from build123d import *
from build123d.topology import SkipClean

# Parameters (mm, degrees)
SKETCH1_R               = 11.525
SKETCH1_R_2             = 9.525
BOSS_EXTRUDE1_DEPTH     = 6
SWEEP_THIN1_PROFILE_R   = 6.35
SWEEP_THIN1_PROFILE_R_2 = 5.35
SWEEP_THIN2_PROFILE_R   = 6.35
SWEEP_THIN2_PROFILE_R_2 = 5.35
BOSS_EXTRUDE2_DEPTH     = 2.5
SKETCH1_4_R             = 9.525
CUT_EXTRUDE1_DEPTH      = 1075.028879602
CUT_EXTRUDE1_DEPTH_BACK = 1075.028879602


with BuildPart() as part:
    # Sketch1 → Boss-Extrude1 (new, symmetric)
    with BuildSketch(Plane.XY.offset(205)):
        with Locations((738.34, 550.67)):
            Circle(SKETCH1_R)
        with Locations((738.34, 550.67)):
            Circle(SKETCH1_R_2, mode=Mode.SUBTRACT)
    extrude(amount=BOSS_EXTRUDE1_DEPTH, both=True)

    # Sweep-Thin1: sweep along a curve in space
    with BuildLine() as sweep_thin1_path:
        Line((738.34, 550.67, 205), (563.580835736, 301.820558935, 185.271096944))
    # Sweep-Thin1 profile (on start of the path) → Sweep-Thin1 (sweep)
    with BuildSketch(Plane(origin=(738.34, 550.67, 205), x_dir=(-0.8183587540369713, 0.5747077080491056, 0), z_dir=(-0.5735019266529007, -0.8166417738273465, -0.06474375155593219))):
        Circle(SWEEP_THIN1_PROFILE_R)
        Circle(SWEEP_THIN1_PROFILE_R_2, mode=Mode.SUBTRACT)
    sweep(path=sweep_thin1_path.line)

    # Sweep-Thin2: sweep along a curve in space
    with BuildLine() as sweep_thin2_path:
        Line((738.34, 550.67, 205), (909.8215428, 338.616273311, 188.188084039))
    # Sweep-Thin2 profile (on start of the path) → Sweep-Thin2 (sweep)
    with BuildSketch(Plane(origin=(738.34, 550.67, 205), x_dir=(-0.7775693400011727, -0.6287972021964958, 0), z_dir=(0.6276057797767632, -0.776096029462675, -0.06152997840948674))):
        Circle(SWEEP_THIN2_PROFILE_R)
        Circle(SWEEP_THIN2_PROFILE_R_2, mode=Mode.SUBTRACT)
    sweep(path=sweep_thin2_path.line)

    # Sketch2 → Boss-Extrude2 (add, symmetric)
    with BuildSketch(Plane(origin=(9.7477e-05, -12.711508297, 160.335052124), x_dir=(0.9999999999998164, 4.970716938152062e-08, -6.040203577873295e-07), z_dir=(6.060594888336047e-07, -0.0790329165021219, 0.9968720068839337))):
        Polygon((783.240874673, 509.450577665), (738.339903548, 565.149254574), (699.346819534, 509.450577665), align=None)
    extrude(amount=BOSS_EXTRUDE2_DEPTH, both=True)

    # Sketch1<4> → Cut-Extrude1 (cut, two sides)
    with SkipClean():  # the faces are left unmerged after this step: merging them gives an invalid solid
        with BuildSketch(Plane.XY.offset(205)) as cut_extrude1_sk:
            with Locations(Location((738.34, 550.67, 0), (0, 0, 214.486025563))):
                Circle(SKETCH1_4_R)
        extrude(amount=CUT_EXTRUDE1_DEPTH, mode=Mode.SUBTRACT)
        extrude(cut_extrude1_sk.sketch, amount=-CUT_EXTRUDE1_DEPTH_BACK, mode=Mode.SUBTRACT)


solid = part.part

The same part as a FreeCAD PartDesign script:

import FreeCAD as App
import Part
import Sketcher

V = App.Vector

doc = App.newDocument("Part")
params = doc.addObject("Spreadsheet::Sheet", "Params")
for row, (alias, value) in enumerate([
    ("sketch1_diameter", "23.05 mm"),
    ("sketch1_diameter2", "19.05 mm"),
    ("pad1_length", "12 mm"),
    ("sketch2_diameter", "12.7 mm"),
    ("sketch2_diameter2", "10.7 mm"),
    ("sketch4_diameter", "12.7 mm"),
    ("sketch4_diameter2", "10.7 mm"),
    ("pad2_length", "5 mm"),
    ("sketch7_diameter", "19.05 mm"),
], start=1):
    params.set(f"A{row}", alias)
    params.set(f"B{row}", "=" + value)
    params.setAlias(f"B{row}", alias)

body = doc.addObject("PartDesign::Body", "Body")

sketch1 = body.newObject("Sketcher::SketchObject", "Sketch")
sketch1.AttachmentSupport = (doc.getObject("XY_Plane"), [""])
sketch1.MapMode = "FlatFace"
sketch1.AttachmentOffset = App.Placement(V(0, 0, 205), App.Rotation())
sketch1.addGeometry(Part.Circle(V(738, 551, 0), V(0, 0, 1), 12), False)
sketch1.addGeometry(Part.Circle(V(738, 551, 0), V(0, 0, 1), 10), False)
sketch1.addConstraint(Sketcher.Constraint("Coincident", 1, 3, 0, 3))
sketch1.addConstraint(Sketcher.Constraint("Diameter", 0, 23.05))
sketch1.addConstraint(Sketcher.Constraint("Diameter", 1, 19.05))
sketch1.addConstraint(Sketcher.Constraint("DistanceX", -1, 1, 0, 3, 738.34))
sketch1.addConstraint(Sketcher.Constraint("DistanceY", -1, 1, 0, 3, 550.67))
sketch1.setExpression("Constraints[1]", "Params.sketch1_diameter")
sketch1.setExpression("Constraints[2]", "Params.sketch1_diameter2")
pad1 = body.newObject("PartDesign::Pad", "Pad")
pad1.Profile = sketch1
pad1.setExpression("Length", "Params.pad1_length")
pad1.Midplane = True

sketch2 = body.newObject("Sketcher::SketchObject", "Sketch001")
sketch2.Placement = App.Placement(V(738.34, 550.67, 205), App.Rotation(V(-0.818358754, 0.574707708, 0), V(0.037208733, 0.052983616, -0.997901923), V(-0.573501927, -0.816641774, -0.064743752), "ZXY"))
sketch2.addGeometry(Part.Circle(V(0, 0, 0), V(0, 0, 1), 6), False)
sketch2.addGeometry(Part.Circle(V(0, 0, 0), V(0, 0, 1), 5), False)
sketch2.addConstraint(Sketcher.Constraint("Coincident", 0, 3, -1, 1))
sketch2.addConstraint(Sketcher.Constraint("Coincident", 1, 3, -1, 1))
sketch2.addConstraint(Sketcher.Constraint("Diameter", 0, 12.7))
sketch2.addConstraint(Sketcher.Constraint("Diameter", 1, 10.7))
sketch2.setExpression("Constraints[2]", "Params.sketch2_diameter")
sketch2.setExpression("Constraints[3]", "Params.sketch2_diameter2")

sketch3 = body.newObject("Sketcher::SketchObject", "Sketch002")
sketch3.Placement = App.Placement(V(235.484948, -165.3737, 0), App.Rotation(V(-0.574707708, -0.818358754, 0), V(0, 0, 1), V(-0.818358754, 0.574707708, 0), "ZXY"))
sketch3.addGeometry(Part.LineSegment(V(-875, 205, 0), V(-571, 185, 0)), False)
sketch3.addConstraint(Sketcher.Constraint("DistanceY", -1, 1, 0, 1, 205.0))
sketch3.addConstraint(Sketcher.Constraint("Distance", 0, 304.72289))
sketch3.addConstraint(Sketcher.Constraint("DistanceX", 0, 1, -1, 1, 874.975304))
sketch3.addConstraint(Sketcher.Constraint("DistanceX", 0, 2, -1, 1, 570.891747))
doc.recompute()

additivepipe = body.newObject("PartDesign::AdditivePipe", "AdditivePipe")
additivepipe.Profile = sketch2
additivepipe.Spine = (sketch3, ["Edge1"])

sketch4 = body.newObject("Sketcher::SketchObject", "Sketch003")
sketch4.Placement = App.Placement(V(738.34, 550.67, 205), App.Rotation(V(-0.77756934, -0.628797202, 0), V(-0.038689878, 0.047843824, -0.998105235), V(0.62760578, -0.776096029, -0.061529978), "ZXY"))
sketch4.addGeometry(Part.Circle(V(0, 0, 0), V(0, 0, 1), 6), False)
sketch4.addGeometry(Part.Circle(V(0, 0, 0), V(0, 0, 1), 5), False)
sketch4.addConstraint(Sketcher.Constraint("Coincident", 0, 3, -1, 1))
sketch4.addConstraint(Sketcher.Constraint("Coincident", 1, 3, -1, 1))
sketch4.addConstraint(Sketcher.Constraint("Diameter", 0, 12.7))
sketch4.addConstraint(Sketcher.Constraint("Diameter", 1, 10.7))
sketch4.setExpression("Constraints[2]", "Params.sketch4_diameter")
sketch4.setExpression("Constraints[3]", "Params.sketch4_diameter2")

sketch5 = body.newObject("Sketcher::SketchObject", "Sketch004")
sketch5.Placement = App.Placement(V(715.651728, 578.726271, 0), App.Rotation(V(0.628797202, -0.77756934, 0), V(0, 0, 1), V(-0.77756934, -0.628797202, 0), "ZXY"))
sketch5.addGeometry(Part.LineSegment(V(36, 205, 0), V(309, 188, 0)), False)
sketch5.addConstraint(Sketcher.Constraint("DistanceY", -1, 1, 0, 1, 205.0))
sketch5.addConstraint(Sketcher.Constraint("Distance", 0, 273.231299))
sketch5.addConstraint(Sketcher.Constraint("DistanceX", -1, 1, 0, 2, 308.795608))
sketch5.addConstraint(Sketcher.Constraint("DistanceX", 0, 1, 0, 2, 272.713591))
doc.recompute()

additivepipe2 = body.newObject("PartDesign::AdditivePipe", "AdditivePipe001")
additivepipe2.Profile = sketch4
additivepipe2.Spine = (sketch5, ["Edge1"])

sketch6 = body.newObject("Sketcher::SketchObject", "Sketch005")
sketch6.Placement = App.Placement(V(0.000097, -12.711508, 160.335052), App.Rotation(V(1, 0.00000005, -0.000000604), V(-0.000000002, 0.996872007, 0.079032917), V(0.000000606, -0.079032917, 0.996872007), "ZXY"))
sketch6.addGeometry(Part.LineSegment(V(783, 509, 0), V(738, 565, 0)), False)
sketch6.addGeometry(Part.LineSegment(V(738, 565, 0), V(699, 509, 0)), False)
sketch6.addGeometry(Part.LineSegment(V(699, 509, 0), V(783, 509, 0)), False)
sketch6.addConstraint(Sketcher.Constraint("Coincident", 0, 2, 1, 1))
sketch6.addConstraint(Sketcher.Constraint("Coincident", 1, 2, 2, 1))
sketch6.addConstraint(Sketcher.Constraint("Coincident", 2, 2, 0, 1))
sketch6.addConstraint(Sketcher.Constraint("Horizontal", 2))
sketch6.addConstraint(Sketcher.Constraint("Distance", 1, 67.9912))
sketch6.addConstraint(Sketcher.Constraint("DistanceX", 2, 1, 2, 2, 83.894055))
sketch6.addConstraint(Sketcher.Constraint("DistanceX", -1, 1, 1, 2, 699.34682))
sketch6.addConstraint(Sketcher.Constraint("DistanceX", 0, 2, 2, 2, 44.900971))
sketch6.addConstraint(Sketcher.Constraint("DistanceY", -1, 1, 0, 2, 565.149255))
pad2 = body.newObject("PartDesign::Pad", "Pad001")
pad2.Profile = sketch6
pad2.setExpression("Length", "Params.pad2_length")
pad2.Midplane = True

sketch7 = body.newObject("Sketcher::SketchObject", "Sketch006")
sketch7.AttachmentSupport = (doc.getObject("XY_Plane"), [""])
sketch7.MapMode = "FlatFace"
sketch7.AttachmentOffset = App.Placement(V(0, 0, 205), App.Rotation())
sketch7.addGeometry(Part.Circle(V(738, 551, 0), V(0, 0, 1), 10), False)
sketch7.addConstraint(Sketcher.Constraint("Diameter", 0, 19.05))
sketch7.addConstraint(Sketcher.Constraint("DistanceX", -1, 1, 0, 3, 738.34))
sketch7.addConstraint(Sketcher.Constraint("DistanceY", -1, 1, 0, 3, 550.67))
sketch7.setExpression("Constraints[0]", "Params.sketch7_diameter")
pocket1 = body.newObject("PartDesign::Pocket", "Pocket")
pocket1.Profile = sketch7
pocket1.Type = "ThroughAll"
pocket1.Midplane = True

doc.recompute()
